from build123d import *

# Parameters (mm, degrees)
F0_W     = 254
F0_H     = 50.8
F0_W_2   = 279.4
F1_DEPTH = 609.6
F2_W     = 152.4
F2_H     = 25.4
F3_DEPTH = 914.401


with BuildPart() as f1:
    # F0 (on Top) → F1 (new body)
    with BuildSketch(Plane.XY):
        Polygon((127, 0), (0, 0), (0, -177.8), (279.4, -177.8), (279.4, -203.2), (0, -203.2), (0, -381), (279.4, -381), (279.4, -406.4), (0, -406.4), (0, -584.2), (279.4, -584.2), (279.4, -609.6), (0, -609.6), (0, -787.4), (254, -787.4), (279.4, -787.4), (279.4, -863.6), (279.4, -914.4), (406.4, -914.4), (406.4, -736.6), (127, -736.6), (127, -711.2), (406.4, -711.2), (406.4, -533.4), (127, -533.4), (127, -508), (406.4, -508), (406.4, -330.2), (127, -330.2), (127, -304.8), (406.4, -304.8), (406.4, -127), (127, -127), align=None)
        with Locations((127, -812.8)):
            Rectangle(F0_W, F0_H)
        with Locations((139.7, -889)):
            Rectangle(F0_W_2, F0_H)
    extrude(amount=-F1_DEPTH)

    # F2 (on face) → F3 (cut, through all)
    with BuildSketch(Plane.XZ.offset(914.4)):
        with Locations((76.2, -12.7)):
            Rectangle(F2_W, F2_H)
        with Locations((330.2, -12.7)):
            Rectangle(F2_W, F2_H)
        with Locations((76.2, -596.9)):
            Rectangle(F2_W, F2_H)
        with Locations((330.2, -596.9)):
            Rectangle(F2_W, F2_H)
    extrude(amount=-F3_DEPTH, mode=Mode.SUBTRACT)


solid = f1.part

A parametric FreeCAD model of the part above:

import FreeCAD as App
import Part
import Sketcher

V = App.Vector
Q = App.Units.Quantity

doc = App.newDocument("Part")
params = doc.addObject("Spreadsheet::Sheet", "Params")
for row, (alias, value) in enumerate([
    ("sketch1_width", "5 in"),
    ("sketch1_width2", "11 in"),
    ("sketch1_width3", "10 in"),
    ("sketch1_height", "7 in"),
    ("sketch1_height2", "9 in"),
    ("pad1_length", "24 in"),
    ("sketch2_width", "6 in"),
    ("sketch2_height", "1 in"),
], start=1):
    params.set(f"A{row}", alias)
    params.set(f"B{row}", "=" + value)
    params.setAlias(f"B{row}", alias)

body = doc.addObject("PartDesign::Body", "Body")

# Sketch on XY plane
sketch1 = body.newObject("Sketcher::SketchObject", "Sketch")
sketch1.AttachmentSupport = (doc.getObject("XY_Plane"), [""])
sketch1.MapMode = "FlatFace"
sketch1.addGeometry([
    Part.LineSegment(V(127, 0, 0), V(0, 0, 0)),  # 0
    Part.LineSegment(V(0, 0, 0), V(0, -178, 0)),  # 1
    Part.LineSegment(V(0, -178, 0), V(279, -178, 0)),  # 2
    Part.LineSegment(V(279, -178, 0), V(279, -203, 0)),  # 3
    Part.LineSegment(V(279, -203, 0), V(0, -203, 0)),  # 4
    Part.LineSegment(V(0, -203, 0), V(0, -381, 0)),  # 5
    Part.LineSegment(V(0, -381, 0), V(279, -381, 0)),  # 6
    Part.LineSegment(V(279, -381, 0), V(279, -406, 0)),  # 7
    Part.LineSegment(V(279, -406, 0), V(0, -406, 0)),  # 8
    Part.LineSegment(V(0, -406, 0), V(0, -584, 0)),  # 9
    Part.LineSegment(V(0, -584, 0), V(279, -584, 0)),  # 10
    Part.LineSegment(V(279, -584, 0), V(279, -610, 0)),  # 11
    Part.LineSegment(V(279, -610, 0), V(0, -610, 0)),  # 12
    Part.LineSegment(V(0, -610, 0), V(0, -838, 0)),  # 13
    Part.LineSegment(V(0, -838, 0), V(254, -838, 0)),  # 14
    Part.LineSegment(V(254, -838, 0), V(254, -787, 0)),  # 15
    Part.LineSegment(V(254, -787, 0), V(279, -787, 0)),  # 16
    Part.LineSegment(V(279, -787, 0), V(279, -864, 0)),  # 17
    Part.LineSegment(V(279, -864, 0), V(0, -864, 0)),  # 18
    Part.LineSegment(V(0, -864, 0), V(0, -914, 0)),  # 19
    Part.LineSegment(V(0, -914, 0), V(406, -914, 0)),  # 20
    Part.LineSegment(V(406, -914, 0), V(406, -737, 0)),  # 21
    Part.LineSegment(V(406, -737, 0), V(127, -737, 0)),  # 22
    Part.LineSegment(V(127, -737, 0), V(127, -711, 0)),  # 23
    Part.LineSegment(V(127, -711, 0), V(406, -711, 0)),  # 24
    Part.LineSegment(V(406, -711, 0), V(406, -533, 0)),  # 25
    Part.LineSegment(V(406, -533, 0), V(127, -533, 0)),  # 26
    Part.LineSegment(V(127, -533, 0), V(127, -508, 0)),  # 27
    Part.LineSegment(V(127, -508, 0), V(406, -508, 0)),  # 28
    Part.LineSegment(V(406, -508, 0), V(406, -330, 0)),  # 29
    Part.LineSegment(V(406, -330, 0), V(127, -330, 0)),  # 30
    Part.LineSegment(V(127, -330, 0), V(127, -305, 0)),  # 31
    Part.LineSegment(V(127, -305, 0), V(406, -305, 0)),  # 32
    Part.LineSegment(V(406, -305, 0), V(406, -127, 0)),  # 33
    Part.LineSegment(V(406, -127, 0), V(127, -127, 0)),  # 34
    Part.LineSegment(V(127, -127, 0), V(127, 0, 0)),  # 35
], False)
sketch1.addConstraint([
    Sketcher.Constraint("Coincident", 0, 2, 1, 1),
    Sketcher.Constraint("Coincident", 1, 2, 2, 1),
    Sketcher.Constraint("Coincident", 2, 2, 3, 1),
    Sketcher.Constraint("Coincident", 3, 2, 4, 1),
    Sketcher.Constraint("Coincident", 4, 2, 5, 1),
    Sketcher.Constraint("Coincident", 5, 2, 6, 1),
    Sketcher.Constraint("Coincident", 6, 2, 7, 1),
    Sketcher.Constraint("Coincident", 7, 2, 8, 1),
    Sketcher.Constraint("Coincident", 8, 2, 9, 1),
    Sketcher.Constraint("Coincident", 9, 2, 10, 1),
    Sketcher.Constraint("Coincident", 10, 2, 11, 1),
    Sketcher.Constraint("Coincident", 11, 2, 12, 1),
    Sketcher.Constraint("Coincident", 12, 2, 13, 1),
    Sketcher.Constraint("Coincident", 13, 2, 14, 1),
    Sketcher.Constraint("Coincident", 14, 2, 15, 1),
    Sketcher.Constraint("Coincident", 15, 2, 16, 1),
    Sketcher.Constraint("Coincident", 16, 2, 17, 1),
    Sketcher.Constraint("Coincident", 17, 2, 18, 1),
    Sketcher.Constraint("Coincident", 18, 2, 19, 1),
    Sketcher.Constraint("Coincident", 19, 2, 20, 1),
    Sketcher.Constraint("Coincident", 20, 2, 21, 1),
    Sketcher.Constraint("Coincident", 21, 2, 22, 1),
    Sketcher.Constraint("Coincident", 22, 2, 23, 1),
    Sketcher.Constraint("Coincident", 23, 2, 24, 1),
    Sketcher.Constraint("Coincident", 24, 2, 25, 1),
    Sketcher.Constraint("Coincident", 25, 2, 26, 1),
    Sketcher.Constraint("Coincident", 26, 2, 27, 1),
    Sketcher.Constraint("Coincident", 27, 2, 28, 1),
    Sketcher.Constraint("Coincident", 28, 2, 29, 1),
    Sketcher.Constraint("Coincident", 29, 2, 30, 1),
    Sketcher.Constraint("Coincident", 30, 2, 31, 1),
    Sketcher.Constraint("Coincident", 31, 2, 32, 1),
    Sketcher.Constraint("Coincident", 32, 2, 33, 1),
    Sketcher.Constraint("Coincident", 33, 2, 34, 1),
    Sketcher.Constraint("Coincident", 34, 2, 35, 1),
    Sketcher.Constraint("Coincident", 35, 2, 0, 1),
    Sketcher.Constraint("Horizontal", 0),
    Sketcher.Constraint("Vertical", 1),
    Sketcher.Constraint("Horizontal", 2),
    Sketcher.Constraint("Vertical", 3),
    Sketcher.Constraint("Horizontal", 4),
    Sketcher.Constraint("Vertical", 5),
    Sketcher.Constraint("Horizontal", 6),
    Sketcher.Constraint("Vertical", 7),
    Sketcher.Constraint("Horizontal", 8),
    Sketcher.Constraint("Vertical", 9),
    Sketcher.Constraint("Horizontal", 10),
    Sketcher.Constraint("Vertical", 11),
    Sketcher.Constraint("Horizontal", 12),
    Sketcher.Constraint("Vertical", 13),
    Sketcher.Constraint("Horizontal", 14),
    Sketcher.Constraint("Vertical", 15),
    Sketcher.Constraint("Horizontal", 16),
    Sketcher.Constraint("Vertical", 17),
    Sketcher.Constraint("Horizontal", 18),
    Sketcher.Constraint("Vertical", 19),
    Sketcher.Constraint("Horizontal", 20),
    Sketcher.Constraint("Vertical", 21),
    Sketcher.Constraint("Horizontal", 22),
    Sketcher.Constraint("Vertical", 23),
    Sketcher.Constraint("Horizontal", 24),
    Sketcher.Constraint("Vertical", 25),
    Sketcher.Constraint("Horizontal", 26),
    Sketcher.Constraint("Vertical", 27),
    Sketcher.Constraint("Horizontal", 28),
    Sketcher.Constraint("Vertical", 29),
    Sketcher.Constraint("Horizontal", 30),
    Sketcher.Constraint("Vertical", 31),
    Sketcher.Constraint("Horizontal", 32),
    Sketcher.Constraint("Vertical", 33),
    Sketcher.Constraint("Horizontal", 34),
    Sketcher.Constraint("Vertical", 35),
    Sketcher.Constraint("Coincident", 0, 2, -1, 1),
    Sketcher.Constraint("PointOnObject", 4, 2, -2),
    Sketcher.Constraint("PointOnObject", 8, 2, -2),
    Sketcher.Constraint("PointOnObject", 12, 2, -2),
    Sketcher.Constraint("PointOnObject", 18, 2, -2),
    Sketcher.Constraint("Vertical", 3, 2, 6, 2),
    Sketcher.Constraint("Vertical", 7, 2, 10, 2),
    Sketcher.Constraint("Vertical", 11, 2, 16, 2),
    Sketcher.Constraint("Vertical", 21, 2, 24, 2),
    Sketcher.Constraint("Vertical", 23, 2, 26, 2),
    Sketcher.Constraint("Vertical", 25, 2, 28, 2),
    Sketcher.Constraint("Vertical", 27, 2, 30, 2),
    Sketcher.Constraint("Vertical", 29, 2, 32, 2),
    Sketcher.Constraint("Vertical", 31, 2, 34, 2),
    Sketcher.Constraint("Equal", 18, 22),
    Sketcher.Constraint("Equal", 16, 3),
    Sketcher.Constraint("Equal", 1, 5),
    Sketcher.Constraint("Equal", 3, 7),
    Sketcher.Constraint("Equal", 5, 9),
    Sketcher.Constraint("Equal", 7, 11),
    Sketcher.Constraint("Equal", 15, 19),
    Sketcher.Constraint("Equal", 9, 21),
    Sketcher.Constraint("Equal", 11, 23),
    Sketcher.Constraint("Equal", 21, 25),
    Sketcher.Constraint("Equal", 23, 27),
    Sketcher.Constraint("Equal", 25, 29),
    Sketcher.Constraint("Equal", 27, 31),
    Sketcher.Constraint("Equal", 29, 33),
    Sketcher.Constraint("Equal", 0, 35),
    Sketcher.Constraint("DistanceX", 0, 2, 0, 1, Q("5 in")),
    Sketcher.Constraint("DistanceX", 2, 1, 2, 2, Q("11 in")),
    Sketcher.Constraint("DistanceX", 14, 1, 14, 2, Q("10 in")),
    Sketcher.Constraint("DistanceY", 1, 2, 1, 1, Q("7 in")),
    Sketcher.Constraint("DistanceY", 13, 2, 13, 1, Q("9 in")),
    Sketcher.Constraint("DistanceY", 15, 1, 15, 2, Q("2 in")),
])
sketch1.setExpression("Constraints[101]", "Params.sketch1_width")
sketch1.setExpression("Constraints[102]", "Params.sketch1_width2")
sketch1.setExpression("Constraints[103]", "Params.sketch1_width3")
sketch1.setExpression("Constraints[104]", "Params.sketch1_height")
sketch1.setExpression("Constraints[105]", "Params.sketch1_height2")
pad1 = body.newObject("PartDesign::Pad", "Pad")
pad1.Profile = sketch1
pad1.setExpression("Length", "Params.pad1_length")
pad1.Reversed = True

# Sketch on XZ plane
sketch2 = body.newObject("Sketcher::SketchObject", "Sketch001")
sketch2.AttachmentSupport = (doc.getObject("XZ_Plane"), [""])
sketch2.MapMode = "FlatFace"
sketch2.AttachmentOffset = App.Placement(V(0, 0, 36 * 25.4), App.Rotation())
sketch2.addGeometry([
    Part.LineSegment(V(0, 0, 0), V(0, -25, 0)),  # 0
    Part.LineSegment(V(0, -25, 0), V(152, -25, 0)),  # 1
    Part.LineSegment(V(152, -25, 0), V(152, 0, 0)),  # 2
    Part.LineSegment(V(152, 0, 0), V(0, 0, 0)),  # 3
    Part.LineSegment(V(254, 0, 0), V(254, -25, 0)),  # 4
    Part.LineSegment(V(254, -25, 0), V(406, -25, 0)),  # 5
    Part.LineSegment(V(406, -25, 0), V(406, 0, 0)),  # 6
    Part.LineSegment(V(406, 0, 0), V(254, 0, 0)),  # 7
    Part.LineSegment(V(0, -584, 0), V(0, -610, 0)),  # 8
    Part.LineSegment(V(0, -610, 0), V(152, -610, 0)),  # 9
    Part.LineSegment(V(152, -610, 0), V(152, -584, 0)),  # 10
    Part.LineSegment(V(152, -584, 0), V(0, -584, 0)),  # 11
    Part.LineSegment(V(254, -584, 0), V(254, -610, 0)),  # 12
    Part.LineSegment(V(254, -610, 0), V(406, -610, 0)),  # 13
    Part.LineSegment(V(406, -610, 0), V(406, -584, 0)),  # 14
    Part.LineSegment(V(406, -584, 0), V(254, -584, 0)),  # 15
], False)
sketch2.addConstraint([
    Sketcher.Constraint("Coincident", 0, 2, 1, 1),
    Sketcher.Constraint("Coincident", 1, 2, 2, 1),
    Sketcher.Constraint("Coincident", 2, 2, 3, 1),
    Sketcher.Constraint("Coincident", 3, 2, 0, 1),
    Sketcher.Constraint("Coincident", 4, 2, 5, 1),
    Sketcher.Constraint("Coincident", 5, 2, 6, 1),
    Sketcher.Constraint("Coincident", 6, 2, 7, 1),
    Sketcher.Constraint("Coincident", 7, 2, 4, 1),
    Sketcher.Constraint("Coincident", 8, 2, 9, 1),
    Sketcher.Constraint("Coincident", 9, 2, 10, 1),
    Sketcher.Constraint("Coincident", 10, 2, 11, 1),
    Sketcher.Constraint("Coincident", 11, 2, 8, 1),
    Sketcher.Constraint("Coincident", 12, 2, 13, 1),
    Sketcher.Constraint("Coincident", 13, 2, 14, 1),
    Sketcher.Constraint("Coincident", 14, 2, 15, 1),
    Sketcher.Constraint("Coincident", 15, 2, 12, 1),
    Sketcher.Constraint("Vertical", 0),
    Sketcher.Constraint("Horizontal", 1),
    Sketcher.Constraint("Vertical", 2),
    Sketcher.Constraint("Horizontal", 3),
    Sketcher.Constraint("Vertical", 4),
    Sketcher.Constraint("Horizontal", 5),
    Sketcher.Constraint("Vertical", 6),
    Sketcher.Constraint("Horizontal", 7),
    Sketcher.Constraint("Vertical", 8),
    Sketcher.Constraint("Horizontal", 9),
    Sketcher.Constraint("Vertical", 10),
    Sketcher.Constraint("Horizontal", 11),
    Sketcher.Constraint("Vertical", 12),
    Sketcher.Constraint("Horizontal", 13),
    Sketcher.Constraint("Vertical", 14),
    Sketcher.Constraint("Horizontal", 15),
    Sketcher.Constraint("Coincident", 3, 2, -1, 1),
    Sketcher.Constraint("PointOnObject", 6, 2, -1),
    Sketcher.Constraint("PointOnObject", 8, 2, -2),
    Sketcher.Constraint("Horizontal", 1, 2, 4, 2),
    Sketcher.Constraint("Horizontal", 9, 2, 12, 2),
    Sketcher.Constraint("Horizontal", 11, 2, 14, 2),
    Sketcher.Constraint("Vertical", 2, 2, 9, 2),
    Sketcher.Constraint("Vertical", 7, 2, 12, 2),
    Sketcher.Constraint("Vertical", 6, 2, 13, 2),
    Sketcher.Constraint("Equal", 3, 5),
    Sketcher.Constraint("Equal", 6, 8),
    Sketcher.Constraint("DistanceX", 1, 1, 1, 2, Q("6 in")),
    Sketcher.Constraint("DistanceY", 0, 2, 0, 1, Q("1 in")),
    Sketcher.Constraint("DistanceX", -1, 1, 4, 2, Q("10 in")),
    Sketcher.Constraint("DistanceY", 8, 2, -1, 1, Q("24 in")),
])
sketch2.setExpression("Constraints[43]", "Params.sketch2_width")
sketch2.setExpression("Constraints[44]", "Params.sketch2_height")
pocket1 = body.newObject("PartDesign::Pocket", "Pocket")
pocket1.Profile = sketch2
pocket1.Type = "ThroughAll"

doc.recompute()
